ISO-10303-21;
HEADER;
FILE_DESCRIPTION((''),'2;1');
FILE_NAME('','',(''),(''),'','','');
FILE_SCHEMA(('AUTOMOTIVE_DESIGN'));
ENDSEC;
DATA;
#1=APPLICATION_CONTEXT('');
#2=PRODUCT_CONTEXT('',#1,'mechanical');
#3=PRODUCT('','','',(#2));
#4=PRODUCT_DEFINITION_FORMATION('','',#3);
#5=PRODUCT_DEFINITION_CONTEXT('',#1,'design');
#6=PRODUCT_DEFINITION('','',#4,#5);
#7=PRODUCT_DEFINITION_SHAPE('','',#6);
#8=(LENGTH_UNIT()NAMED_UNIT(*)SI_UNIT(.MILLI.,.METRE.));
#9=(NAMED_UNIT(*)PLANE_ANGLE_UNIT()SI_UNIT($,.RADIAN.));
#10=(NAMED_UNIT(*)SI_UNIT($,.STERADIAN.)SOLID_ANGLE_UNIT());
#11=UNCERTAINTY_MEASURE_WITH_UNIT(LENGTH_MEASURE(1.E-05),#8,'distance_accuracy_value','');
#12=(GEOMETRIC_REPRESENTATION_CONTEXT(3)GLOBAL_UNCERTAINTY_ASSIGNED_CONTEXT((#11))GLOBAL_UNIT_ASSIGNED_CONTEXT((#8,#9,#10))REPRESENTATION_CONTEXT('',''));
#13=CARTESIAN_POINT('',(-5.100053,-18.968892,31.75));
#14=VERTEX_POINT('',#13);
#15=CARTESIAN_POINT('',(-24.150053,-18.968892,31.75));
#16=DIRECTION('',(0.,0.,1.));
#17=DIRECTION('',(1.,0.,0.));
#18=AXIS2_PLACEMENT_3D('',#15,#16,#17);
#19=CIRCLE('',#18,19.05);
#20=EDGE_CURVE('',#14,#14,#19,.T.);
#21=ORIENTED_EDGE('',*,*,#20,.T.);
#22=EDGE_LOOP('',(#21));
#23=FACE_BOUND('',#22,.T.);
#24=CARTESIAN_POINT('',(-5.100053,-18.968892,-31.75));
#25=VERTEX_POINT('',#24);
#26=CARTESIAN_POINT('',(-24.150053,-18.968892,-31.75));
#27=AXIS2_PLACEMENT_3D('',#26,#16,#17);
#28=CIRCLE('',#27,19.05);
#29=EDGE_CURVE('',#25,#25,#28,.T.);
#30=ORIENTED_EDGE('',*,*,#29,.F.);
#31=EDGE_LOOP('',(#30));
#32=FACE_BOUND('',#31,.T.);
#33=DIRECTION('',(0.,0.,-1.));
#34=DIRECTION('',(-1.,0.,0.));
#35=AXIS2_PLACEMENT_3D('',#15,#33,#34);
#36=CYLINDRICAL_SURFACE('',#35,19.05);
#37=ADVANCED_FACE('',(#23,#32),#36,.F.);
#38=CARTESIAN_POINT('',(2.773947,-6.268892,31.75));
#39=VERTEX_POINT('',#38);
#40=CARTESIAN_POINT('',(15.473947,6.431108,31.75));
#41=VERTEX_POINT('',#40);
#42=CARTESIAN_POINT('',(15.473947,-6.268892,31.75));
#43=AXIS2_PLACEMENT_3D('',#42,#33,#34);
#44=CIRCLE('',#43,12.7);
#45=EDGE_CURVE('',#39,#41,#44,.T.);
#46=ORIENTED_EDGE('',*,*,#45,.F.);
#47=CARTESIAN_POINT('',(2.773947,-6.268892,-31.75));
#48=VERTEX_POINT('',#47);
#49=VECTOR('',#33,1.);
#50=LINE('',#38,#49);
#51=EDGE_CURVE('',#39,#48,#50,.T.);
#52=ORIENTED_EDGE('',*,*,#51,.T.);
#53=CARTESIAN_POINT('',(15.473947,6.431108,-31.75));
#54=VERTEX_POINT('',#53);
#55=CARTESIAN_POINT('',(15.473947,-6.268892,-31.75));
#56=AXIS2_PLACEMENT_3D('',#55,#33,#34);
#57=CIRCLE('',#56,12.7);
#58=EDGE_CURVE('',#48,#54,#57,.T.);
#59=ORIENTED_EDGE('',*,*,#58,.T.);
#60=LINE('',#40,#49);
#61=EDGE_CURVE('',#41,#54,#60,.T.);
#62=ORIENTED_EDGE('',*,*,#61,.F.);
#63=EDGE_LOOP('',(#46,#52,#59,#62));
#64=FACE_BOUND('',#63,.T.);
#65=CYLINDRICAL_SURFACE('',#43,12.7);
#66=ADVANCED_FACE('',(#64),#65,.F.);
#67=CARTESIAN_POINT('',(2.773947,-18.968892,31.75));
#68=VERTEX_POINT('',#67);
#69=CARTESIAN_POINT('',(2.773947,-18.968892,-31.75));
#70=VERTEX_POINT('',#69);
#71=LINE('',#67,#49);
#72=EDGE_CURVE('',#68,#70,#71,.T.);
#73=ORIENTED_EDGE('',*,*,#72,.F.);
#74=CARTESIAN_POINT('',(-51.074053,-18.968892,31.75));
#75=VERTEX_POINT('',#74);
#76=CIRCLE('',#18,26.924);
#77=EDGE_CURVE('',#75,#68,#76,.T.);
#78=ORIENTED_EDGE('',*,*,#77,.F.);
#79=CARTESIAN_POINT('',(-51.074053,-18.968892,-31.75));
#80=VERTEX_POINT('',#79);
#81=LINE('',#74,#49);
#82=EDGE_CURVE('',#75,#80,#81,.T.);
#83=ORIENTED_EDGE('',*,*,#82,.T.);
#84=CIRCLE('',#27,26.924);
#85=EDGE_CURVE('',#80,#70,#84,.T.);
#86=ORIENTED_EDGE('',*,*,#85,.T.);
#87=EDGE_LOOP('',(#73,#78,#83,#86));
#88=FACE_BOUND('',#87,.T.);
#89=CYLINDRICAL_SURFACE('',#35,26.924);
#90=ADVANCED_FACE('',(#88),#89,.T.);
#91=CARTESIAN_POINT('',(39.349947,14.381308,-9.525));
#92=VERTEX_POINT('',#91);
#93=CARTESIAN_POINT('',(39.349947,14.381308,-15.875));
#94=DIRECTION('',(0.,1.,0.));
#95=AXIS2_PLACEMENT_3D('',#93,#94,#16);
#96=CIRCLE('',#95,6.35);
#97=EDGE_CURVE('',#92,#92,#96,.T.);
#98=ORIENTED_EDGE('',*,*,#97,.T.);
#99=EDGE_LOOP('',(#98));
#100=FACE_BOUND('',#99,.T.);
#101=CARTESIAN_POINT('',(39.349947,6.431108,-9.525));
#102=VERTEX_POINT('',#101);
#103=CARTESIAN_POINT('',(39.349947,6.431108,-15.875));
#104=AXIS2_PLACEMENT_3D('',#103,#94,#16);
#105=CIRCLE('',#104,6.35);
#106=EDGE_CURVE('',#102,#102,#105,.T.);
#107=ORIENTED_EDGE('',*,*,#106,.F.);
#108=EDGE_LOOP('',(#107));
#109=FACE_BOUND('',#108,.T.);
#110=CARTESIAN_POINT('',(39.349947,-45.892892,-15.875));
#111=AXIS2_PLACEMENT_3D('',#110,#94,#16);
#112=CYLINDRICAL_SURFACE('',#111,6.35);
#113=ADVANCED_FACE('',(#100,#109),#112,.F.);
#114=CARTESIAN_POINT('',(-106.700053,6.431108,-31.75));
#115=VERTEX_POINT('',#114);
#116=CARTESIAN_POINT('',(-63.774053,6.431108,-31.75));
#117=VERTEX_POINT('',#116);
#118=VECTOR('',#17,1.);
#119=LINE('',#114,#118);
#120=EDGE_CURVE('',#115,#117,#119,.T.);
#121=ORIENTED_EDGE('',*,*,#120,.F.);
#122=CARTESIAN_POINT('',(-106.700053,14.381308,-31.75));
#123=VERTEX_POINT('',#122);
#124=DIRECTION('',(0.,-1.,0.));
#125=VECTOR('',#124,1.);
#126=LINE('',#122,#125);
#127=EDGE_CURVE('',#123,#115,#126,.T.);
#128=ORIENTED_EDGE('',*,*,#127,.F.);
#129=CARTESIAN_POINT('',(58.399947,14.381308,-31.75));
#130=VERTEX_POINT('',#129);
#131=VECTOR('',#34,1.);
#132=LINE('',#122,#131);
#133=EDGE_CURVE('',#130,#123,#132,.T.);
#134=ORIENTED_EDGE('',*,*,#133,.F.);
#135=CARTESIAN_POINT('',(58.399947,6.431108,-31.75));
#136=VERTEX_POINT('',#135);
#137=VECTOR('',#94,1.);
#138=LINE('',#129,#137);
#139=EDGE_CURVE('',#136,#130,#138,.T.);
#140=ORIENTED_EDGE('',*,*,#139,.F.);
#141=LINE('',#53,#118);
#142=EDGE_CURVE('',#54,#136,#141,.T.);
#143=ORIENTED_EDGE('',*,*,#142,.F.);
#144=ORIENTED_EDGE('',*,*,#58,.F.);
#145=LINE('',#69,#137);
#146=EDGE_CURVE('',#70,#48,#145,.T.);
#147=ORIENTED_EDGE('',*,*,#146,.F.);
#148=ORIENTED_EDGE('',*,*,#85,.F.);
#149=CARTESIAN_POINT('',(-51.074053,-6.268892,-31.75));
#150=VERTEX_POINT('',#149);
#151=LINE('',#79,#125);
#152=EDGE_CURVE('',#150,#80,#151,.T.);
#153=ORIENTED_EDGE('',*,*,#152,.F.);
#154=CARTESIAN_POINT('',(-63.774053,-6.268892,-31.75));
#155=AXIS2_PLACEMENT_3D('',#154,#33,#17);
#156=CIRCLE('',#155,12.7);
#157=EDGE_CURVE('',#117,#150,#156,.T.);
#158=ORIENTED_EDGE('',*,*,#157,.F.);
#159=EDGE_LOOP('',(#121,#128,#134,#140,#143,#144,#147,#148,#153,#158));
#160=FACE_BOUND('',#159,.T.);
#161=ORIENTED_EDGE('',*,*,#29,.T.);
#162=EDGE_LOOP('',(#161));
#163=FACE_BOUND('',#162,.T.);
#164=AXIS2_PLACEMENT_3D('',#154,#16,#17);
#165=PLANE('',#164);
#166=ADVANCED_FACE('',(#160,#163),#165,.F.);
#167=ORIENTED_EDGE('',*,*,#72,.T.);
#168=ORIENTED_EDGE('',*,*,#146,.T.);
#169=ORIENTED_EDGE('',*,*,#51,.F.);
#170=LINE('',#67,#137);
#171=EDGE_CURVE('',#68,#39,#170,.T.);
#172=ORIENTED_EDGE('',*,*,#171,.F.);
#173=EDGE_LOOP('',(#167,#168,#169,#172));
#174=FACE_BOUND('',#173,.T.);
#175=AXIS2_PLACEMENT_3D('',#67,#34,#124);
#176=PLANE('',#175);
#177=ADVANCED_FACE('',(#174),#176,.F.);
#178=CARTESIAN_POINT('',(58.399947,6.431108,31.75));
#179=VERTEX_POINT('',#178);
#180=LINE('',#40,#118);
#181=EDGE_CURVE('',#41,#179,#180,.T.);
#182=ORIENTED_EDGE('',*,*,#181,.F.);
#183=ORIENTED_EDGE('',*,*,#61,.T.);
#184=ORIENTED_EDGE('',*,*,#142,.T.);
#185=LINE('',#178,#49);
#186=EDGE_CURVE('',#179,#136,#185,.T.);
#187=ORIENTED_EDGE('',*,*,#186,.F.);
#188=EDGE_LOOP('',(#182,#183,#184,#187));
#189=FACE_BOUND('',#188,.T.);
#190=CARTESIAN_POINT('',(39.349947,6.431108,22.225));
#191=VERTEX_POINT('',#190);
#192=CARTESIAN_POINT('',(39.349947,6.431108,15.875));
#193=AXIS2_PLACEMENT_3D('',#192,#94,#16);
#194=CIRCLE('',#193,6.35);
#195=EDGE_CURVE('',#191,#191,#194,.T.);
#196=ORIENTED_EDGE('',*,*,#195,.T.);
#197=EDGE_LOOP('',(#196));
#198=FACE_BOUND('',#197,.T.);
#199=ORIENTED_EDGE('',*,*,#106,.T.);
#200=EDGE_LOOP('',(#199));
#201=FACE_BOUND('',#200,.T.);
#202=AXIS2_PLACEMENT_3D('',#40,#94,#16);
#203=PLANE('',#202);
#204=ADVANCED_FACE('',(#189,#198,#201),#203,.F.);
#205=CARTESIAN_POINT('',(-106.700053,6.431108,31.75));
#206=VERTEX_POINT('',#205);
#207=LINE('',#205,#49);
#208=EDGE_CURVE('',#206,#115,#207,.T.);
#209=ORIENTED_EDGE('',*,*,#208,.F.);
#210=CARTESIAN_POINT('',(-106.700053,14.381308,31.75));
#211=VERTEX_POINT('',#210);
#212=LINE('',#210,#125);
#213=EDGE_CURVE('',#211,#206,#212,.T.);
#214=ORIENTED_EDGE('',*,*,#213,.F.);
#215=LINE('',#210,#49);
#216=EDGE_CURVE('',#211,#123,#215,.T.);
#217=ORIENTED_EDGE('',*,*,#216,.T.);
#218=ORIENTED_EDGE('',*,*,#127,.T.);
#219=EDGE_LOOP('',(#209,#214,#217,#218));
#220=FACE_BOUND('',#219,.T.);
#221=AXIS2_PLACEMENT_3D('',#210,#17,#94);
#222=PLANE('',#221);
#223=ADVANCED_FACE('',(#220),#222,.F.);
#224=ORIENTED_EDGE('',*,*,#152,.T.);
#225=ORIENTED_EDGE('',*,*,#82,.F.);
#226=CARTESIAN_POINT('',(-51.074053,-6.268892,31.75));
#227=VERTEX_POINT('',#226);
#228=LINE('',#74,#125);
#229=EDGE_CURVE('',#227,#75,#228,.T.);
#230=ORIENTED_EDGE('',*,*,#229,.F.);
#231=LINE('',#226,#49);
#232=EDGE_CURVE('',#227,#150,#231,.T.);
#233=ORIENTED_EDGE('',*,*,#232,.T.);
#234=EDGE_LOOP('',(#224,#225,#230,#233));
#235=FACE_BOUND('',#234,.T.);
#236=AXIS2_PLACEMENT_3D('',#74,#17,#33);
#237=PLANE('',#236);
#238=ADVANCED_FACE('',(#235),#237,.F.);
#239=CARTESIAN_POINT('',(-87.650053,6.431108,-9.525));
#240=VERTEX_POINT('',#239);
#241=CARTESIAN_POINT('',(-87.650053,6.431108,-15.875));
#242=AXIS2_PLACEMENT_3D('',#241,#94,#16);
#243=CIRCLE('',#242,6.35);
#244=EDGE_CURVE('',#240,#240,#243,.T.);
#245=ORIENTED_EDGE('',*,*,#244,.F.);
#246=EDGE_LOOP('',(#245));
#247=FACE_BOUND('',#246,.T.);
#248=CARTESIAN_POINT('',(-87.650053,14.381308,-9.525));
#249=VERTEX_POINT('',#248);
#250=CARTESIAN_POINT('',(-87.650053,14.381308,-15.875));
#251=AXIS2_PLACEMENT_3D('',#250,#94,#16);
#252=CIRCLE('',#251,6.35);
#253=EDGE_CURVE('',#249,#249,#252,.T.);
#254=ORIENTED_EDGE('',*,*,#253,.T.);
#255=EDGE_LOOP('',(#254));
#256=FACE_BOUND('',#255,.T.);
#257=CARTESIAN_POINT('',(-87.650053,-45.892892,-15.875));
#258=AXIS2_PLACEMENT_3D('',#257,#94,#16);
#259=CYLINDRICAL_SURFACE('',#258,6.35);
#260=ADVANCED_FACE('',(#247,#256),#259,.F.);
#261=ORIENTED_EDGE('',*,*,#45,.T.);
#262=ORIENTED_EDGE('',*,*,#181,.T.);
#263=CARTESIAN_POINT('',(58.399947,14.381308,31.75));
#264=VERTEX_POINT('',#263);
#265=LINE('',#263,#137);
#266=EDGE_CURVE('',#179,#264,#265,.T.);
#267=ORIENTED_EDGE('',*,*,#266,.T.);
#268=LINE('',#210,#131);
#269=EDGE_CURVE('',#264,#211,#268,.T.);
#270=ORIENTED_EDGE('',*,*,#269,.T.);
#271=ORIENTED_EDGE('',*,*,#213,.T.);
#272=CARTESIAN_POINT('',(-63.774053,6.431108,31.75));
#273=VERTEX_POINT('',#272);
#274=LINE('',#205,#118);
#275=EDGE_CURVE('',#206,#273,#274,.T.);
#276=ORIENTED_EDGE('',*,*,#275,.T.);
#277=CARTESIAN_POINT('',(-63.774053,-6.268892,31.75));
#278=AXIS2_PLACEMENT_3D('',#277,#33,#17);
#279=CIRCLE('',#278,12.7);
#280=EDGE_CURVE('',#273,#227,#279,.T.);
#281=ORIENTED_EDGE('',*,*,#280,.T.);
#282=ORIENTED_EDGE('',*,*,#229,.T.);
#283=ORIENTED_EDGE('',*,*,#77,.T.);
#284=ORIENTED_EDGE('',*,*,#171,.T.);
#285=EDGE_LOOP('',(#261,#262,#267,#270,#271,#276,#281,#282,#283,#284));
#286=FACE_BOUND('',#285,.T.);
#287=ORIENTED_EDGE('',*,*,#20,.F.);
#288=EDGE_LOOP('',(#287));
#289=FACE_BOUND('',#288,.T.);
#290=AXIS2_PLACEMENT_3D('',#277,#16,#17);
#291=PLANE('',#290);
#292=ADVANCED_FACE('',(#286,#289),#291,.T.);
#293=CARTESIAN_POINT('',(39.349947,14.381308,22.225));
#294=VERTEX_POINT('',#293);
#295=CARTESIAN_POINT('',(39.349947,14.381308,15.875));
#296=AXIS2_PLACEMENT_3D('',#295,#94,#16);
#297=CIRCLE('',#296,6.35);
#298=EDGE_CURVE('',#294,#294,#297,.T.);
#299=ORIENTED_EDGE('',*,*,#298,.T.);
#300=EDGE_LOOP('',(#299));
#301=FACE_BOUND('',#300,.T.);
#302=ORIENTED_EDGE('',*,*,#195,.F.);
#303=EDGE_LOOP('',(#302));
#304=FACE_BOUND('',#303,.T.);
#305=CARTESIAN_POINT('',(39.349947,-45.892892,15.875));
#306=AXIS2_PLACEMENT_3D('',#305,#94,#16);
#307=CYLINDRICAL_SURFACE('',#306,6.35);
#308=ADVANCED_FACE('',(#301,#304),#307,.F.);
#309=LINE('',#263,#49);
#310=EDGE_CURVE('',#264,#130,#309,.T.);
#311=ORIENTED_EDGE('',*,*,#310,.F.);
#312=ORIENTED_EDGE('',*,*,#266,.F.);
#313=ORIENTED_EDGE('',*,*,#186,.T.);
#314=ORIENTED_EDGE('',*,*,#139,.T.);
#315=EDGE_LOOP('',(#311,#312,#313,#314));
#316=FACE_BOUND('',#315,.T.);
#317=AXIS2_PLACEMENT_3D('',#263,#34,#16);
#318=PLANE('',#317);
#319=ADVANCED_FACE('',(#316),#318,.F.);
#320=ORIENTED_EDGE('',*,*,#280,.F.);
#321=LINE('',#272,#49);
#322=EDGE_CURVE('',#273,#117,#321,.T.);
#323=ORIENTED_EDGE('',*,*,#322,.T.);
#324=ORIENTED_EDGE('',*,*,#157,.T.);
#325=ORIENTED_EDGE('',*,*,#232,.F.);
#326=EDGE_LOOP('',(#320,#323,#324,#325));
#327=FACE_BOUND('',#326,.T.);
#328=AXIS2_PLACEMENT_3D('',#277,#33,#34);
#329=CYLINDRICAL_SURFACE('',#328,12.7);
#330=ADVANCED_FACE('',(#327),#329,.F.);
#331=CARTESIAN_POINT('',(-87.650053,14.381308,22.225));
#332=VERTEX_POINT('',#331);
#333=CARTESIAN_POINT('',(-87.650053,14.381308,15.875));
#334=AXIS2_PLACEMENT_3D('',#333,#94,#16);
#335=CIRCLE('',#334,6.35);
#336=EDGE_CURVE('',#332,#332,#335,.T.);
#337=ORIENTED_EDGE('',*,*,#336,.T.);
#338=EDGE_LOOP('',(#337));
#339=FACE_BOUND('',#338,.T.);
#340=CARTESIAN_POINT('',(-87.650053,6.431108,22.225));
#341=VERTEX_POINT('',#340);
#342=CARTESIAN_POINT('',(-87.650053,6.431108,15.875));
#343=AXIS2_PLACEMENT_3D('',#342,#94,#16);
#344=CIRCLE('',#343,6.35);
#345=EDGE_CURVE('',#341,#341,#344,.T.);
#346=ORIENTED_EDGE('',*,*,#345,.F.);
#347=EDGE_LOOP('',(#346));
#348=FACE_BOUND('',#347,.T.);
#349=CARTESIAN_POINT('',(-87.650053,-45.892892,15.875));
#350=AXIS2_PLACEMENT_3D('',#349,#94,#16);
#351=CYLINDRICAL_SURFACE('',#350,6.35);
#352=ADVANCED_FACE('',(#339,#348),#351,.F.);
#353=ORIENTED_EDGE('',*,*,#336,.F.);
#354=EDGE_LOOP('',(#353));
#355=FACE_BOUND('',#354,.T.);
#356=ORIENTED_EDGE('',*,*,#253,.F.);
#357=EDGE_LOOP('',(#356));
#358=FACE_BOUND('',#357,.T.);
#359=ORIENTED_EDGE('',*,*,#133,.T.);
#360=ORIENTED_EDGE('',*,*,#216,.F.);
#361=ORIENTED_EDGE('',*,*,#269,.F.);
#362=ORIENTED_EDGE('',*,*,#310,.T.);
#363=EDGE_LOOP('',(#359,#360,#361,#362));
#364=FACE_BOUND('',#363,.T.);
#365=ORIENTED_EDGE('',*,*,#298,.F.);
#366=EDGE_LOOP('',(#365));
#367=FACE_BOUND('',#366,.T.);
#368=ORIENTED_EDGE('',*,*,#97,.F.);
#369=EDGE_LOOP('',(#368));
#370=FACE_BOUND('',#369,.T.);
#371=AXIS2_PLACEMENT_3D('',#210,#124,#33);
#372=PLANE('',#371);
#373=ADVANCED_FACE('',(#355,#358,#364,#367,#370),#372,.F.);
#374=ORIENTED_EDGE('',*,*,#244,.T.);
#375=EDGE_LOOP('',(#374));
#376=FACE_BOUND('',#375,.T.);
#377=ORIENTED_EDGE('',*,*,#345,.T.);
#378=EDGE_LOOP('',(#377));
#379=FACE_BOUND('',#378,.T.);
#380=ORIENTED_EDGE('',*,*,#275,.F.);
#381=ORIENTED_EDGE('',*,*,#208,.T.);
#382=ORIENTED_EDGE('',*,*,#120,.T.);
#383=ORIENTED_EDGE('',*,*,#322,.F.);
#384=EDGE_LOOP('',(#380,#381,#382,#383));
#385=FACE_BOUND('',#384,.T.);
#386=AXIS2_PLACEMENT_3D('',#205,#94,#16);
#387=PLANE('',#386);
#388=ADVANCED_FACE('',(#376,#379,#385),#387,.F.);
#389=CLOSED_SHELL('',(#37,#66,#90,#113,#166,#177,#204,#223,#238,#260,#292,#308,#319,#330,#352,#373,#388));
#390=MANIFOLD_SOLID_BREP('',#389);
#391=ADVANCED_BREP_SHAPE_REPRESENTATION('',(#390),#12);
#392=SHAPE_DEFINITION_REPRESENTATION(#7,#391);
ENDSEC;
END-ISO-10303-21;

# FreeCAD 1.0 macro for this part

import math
import FreeCAD as App
import Part
import Sketcher
from FreeCAD import Vector
Q = App.Units.Quantity

doc = App.newDocument("Part")
body = doc.addObject("PartDesign::Body", "Body")

# Sketch on XY plane
sketch1 = body.newObject("Sketcher::SketchObject", "Sketch")
sketch1.AttachmentSupport = (doc.getObject("XY_Plane"), [""])
sketch1.MapMode = "FlatFace"
sketch1.addGeometry(Part.LineSegment(Vector(-51, -6, 0), Vector(-51, -19, 0)), False)
sketch1.addGeometry(Part.ArcOfCircle(Part.Circle(Vector(-24, -19, 0), Vector(0, 0, 1), 27), math.radians(180), math.radians(360)), False)
sketch1.addGeometry(Part.LineSegment(Vector(3, -19, 0), Vector(3, -6, 0)), False)
sketch1.addGeometry(Part.ArcOfCircle(Part.Circle(Vector(15, -6, 0), Vector(0, 0, 1), 13), math.radians(90), math.radians(180)), False)
sketch1.addGeometry(Part.LineSegment(Vector(15, 6, 0), Vector(58, 6, 0)), False)
sketch1.addGeometry(Part.LineSegment(Vector(58, 6, 0), Vector(58, 14, 0)), False)
sketch1.addGeometry(Part.LineSegment(Vector(58, 14, 0), Vector(-107, 14, 0)), False)
sketch1.addGeometry(Part.LineSegment(Vector(-107, 14, 0), Vector(-107, 6, 0)), False)
sketch1.addGeometry(Part.LineSegment(Vector(-107, 6, 0), Vector(-64, 6, 0)), False)
sketch1.addGeometry(Part.ArcOfCircle(Part.Circle(Vector(-64, -6, 0), Vector(0, 0, 1), 13), math.radians(0), math.radians(90)), False)
sketch1.addGeometry(Part.Circle(Vector(-24, -19, 0), Vector(0, 0, 1), 19), False)
sketch1.addConstraint(Sketcher.Constraint("Tangent", 0, 2, 1, 1))
sketch1.addConstraint(Sketcher.Constraint("Tangent", 1, 2, 2, 1))
sketch1.addConstraint(Sketcher.Constraint("Tangent", 2, 2, 3, 2))
sketch1.addConstraint(Sketcher.Constraint("Tangent", 3, 1, 4, 1))
sketch1.addConstraint(Sketcher.Constraint("Coincident", 4, 2, 5, 1))
sketch1.addConstraint(Sketcher.Constraint("Coincident", 5, 2, 6, 1))
sketch1.addConstraint(Sketcher.Constraint("Coincident", 6, 2, 7, 1))
sketch1.addConstraint(Sketcher.Constraint("Coincident", 7, 2, 8, 1))
sketch1.addConstraint(Sketcher.Constraint("Tangent", 8, 2, 9, 2))
sketch1.addConstraint(Sketcher.Constraint("Tangent", 9, 1, 0, 1))
sketch1.addConstraint(Sketcher.Constraint("Vertical", 0))
sketch1.addConstraint(Sketcher.Constraint("Vertical", 2))
sketch1.addConstraint(Sketcher.Constraint("Horizontal", 4))
sketch1.addConstraint(Sketcher.Constraint("Vertical", 5))
sketch1.addConstraint(Sketcher.Constraint("Horizontal", 6))
sketch1.addConstraint(Sketcher.Constraint("Vertical", 7))
sketch1.addConstraint(Sketcher.Constraint("Horizontal", 8))
sketch1.addConstraint(Sketcher.Constraint("Coincident", 10, 3, 1, 3))
sketch1.addConstraint(Sketcher.Constraint("Equal", 3, 9))
sketch1.addConstraint(Sketcher.Constraint("Horizontal", 3, 3, 9, 3))
sketch1.addConstraint(Sketcher.Constraint("Equal", 4, 8))
sketch1.addConstraint(Sketcher.Constraint("Diameter", 10, Q("1.5 in")))
sketch1.addConstraint(Sketcher.Constraint("Radius", 3, Q("0.5 in")))
sketch1.addConstraint(Sketcher.Constraint("Radius", 1, Q("1.06 in")))
sketch1.addConstraint(Sketcher.Constraint("DistanceX", 6, 2, 6, 1, Q("6.5 in")))
sketch1.addConstraint(Sketcher.Constraint("DistanceY", 0, 2, 0, 1, Q("0.5 in")))
sketch1.addConstraint(Sketcher.Constraint("DistanceY", 5, 1, 5, 2, Q("0.313 in")))
sketch1.addConstraint(Sketcher.Constraint("DistanceY", 1, 3, -1, 1, 18.968892))
sketch1.addConstraint(Sketcher.Constraint("DistanceX", 1, 3, -1, 1, 24.150053))
pad1 = body.newObject("PartDesign::Pad", "Pad")
pad1.Profile = sketch1
pad1.Length = Q("2.5 in")
pad1.Midplane = True

# Sketch on XZ plane
sketch2 = body.newObject("Sketcher::SketchObject", "Sketch001")
sketch2.AttachmentSupport = (doc.getObject("XZ_Plane"), [""])
sketch2.MapMode = "FlatFace"
sketch2.AttachmentOffset = App.Placement(Vector(0, 0, -14.381308), App.Rotation())
sketch2.addGeometry(Part.Circle(Vector(-88, -16, 0), Vector(0, 0, 1), 6), False)
sketch2.addGeometry(Part.Circle(Vector(-88, 16, 0), Vector(0, 0, 1), 6), False)
sketch2.addGeometry(Part.Circle(Vector(39, 16, 0), Vector(0, 0, 1), 6), False)
sketch2.addGeometry(Part.Circle(Vector(39, -16, 0), Vector(0, 0, 1), 6), False)
sketch2.addConstraint(Sketcher.Constraint("Equal", 0, 1))
sketch2.addConstraint(Sketcher.Constraint("Equal", 1, 2))
sketch2.addConstraint(Sketcher.Constraint("Equal", 2, 3))
sketch2.addConstraint(Sketcher.Constraint("Symmetric", 0, 3, 1, 3, -1))
sketch2.addConstraint(Sketcher.Constraint("Symmetric", 2, 3, 3, 3, -1))
sketch2.addConstraint(Sketcher.Constraint("Horizontal", 1, 3, 2, 3))
sketch2.addConstraint(Sketcher.Constraint("Diameter", 0, Q("0.5 in")))
sketch2.addConstraint(Sketcher.Constraint("DistanceX", 1, 3, 2, 3, Q("5 in")))
sketch2.addConstraint(Sketcher.Constraint("DistanceY", 0, 3, 1, 3, Q("1.25 in")))
sketch2.addConstraint(Sketcher.Constraint("DistanceX", 0, 3, -1, 1, 87.650053))
pocket1 = body.newObject("PartDesign::Pocket", "Pocket")
pocket1.Profile = sketch2
pocket1.Type = "ThroughAll"
pocket1.Reversed = True

doc.recompute()
